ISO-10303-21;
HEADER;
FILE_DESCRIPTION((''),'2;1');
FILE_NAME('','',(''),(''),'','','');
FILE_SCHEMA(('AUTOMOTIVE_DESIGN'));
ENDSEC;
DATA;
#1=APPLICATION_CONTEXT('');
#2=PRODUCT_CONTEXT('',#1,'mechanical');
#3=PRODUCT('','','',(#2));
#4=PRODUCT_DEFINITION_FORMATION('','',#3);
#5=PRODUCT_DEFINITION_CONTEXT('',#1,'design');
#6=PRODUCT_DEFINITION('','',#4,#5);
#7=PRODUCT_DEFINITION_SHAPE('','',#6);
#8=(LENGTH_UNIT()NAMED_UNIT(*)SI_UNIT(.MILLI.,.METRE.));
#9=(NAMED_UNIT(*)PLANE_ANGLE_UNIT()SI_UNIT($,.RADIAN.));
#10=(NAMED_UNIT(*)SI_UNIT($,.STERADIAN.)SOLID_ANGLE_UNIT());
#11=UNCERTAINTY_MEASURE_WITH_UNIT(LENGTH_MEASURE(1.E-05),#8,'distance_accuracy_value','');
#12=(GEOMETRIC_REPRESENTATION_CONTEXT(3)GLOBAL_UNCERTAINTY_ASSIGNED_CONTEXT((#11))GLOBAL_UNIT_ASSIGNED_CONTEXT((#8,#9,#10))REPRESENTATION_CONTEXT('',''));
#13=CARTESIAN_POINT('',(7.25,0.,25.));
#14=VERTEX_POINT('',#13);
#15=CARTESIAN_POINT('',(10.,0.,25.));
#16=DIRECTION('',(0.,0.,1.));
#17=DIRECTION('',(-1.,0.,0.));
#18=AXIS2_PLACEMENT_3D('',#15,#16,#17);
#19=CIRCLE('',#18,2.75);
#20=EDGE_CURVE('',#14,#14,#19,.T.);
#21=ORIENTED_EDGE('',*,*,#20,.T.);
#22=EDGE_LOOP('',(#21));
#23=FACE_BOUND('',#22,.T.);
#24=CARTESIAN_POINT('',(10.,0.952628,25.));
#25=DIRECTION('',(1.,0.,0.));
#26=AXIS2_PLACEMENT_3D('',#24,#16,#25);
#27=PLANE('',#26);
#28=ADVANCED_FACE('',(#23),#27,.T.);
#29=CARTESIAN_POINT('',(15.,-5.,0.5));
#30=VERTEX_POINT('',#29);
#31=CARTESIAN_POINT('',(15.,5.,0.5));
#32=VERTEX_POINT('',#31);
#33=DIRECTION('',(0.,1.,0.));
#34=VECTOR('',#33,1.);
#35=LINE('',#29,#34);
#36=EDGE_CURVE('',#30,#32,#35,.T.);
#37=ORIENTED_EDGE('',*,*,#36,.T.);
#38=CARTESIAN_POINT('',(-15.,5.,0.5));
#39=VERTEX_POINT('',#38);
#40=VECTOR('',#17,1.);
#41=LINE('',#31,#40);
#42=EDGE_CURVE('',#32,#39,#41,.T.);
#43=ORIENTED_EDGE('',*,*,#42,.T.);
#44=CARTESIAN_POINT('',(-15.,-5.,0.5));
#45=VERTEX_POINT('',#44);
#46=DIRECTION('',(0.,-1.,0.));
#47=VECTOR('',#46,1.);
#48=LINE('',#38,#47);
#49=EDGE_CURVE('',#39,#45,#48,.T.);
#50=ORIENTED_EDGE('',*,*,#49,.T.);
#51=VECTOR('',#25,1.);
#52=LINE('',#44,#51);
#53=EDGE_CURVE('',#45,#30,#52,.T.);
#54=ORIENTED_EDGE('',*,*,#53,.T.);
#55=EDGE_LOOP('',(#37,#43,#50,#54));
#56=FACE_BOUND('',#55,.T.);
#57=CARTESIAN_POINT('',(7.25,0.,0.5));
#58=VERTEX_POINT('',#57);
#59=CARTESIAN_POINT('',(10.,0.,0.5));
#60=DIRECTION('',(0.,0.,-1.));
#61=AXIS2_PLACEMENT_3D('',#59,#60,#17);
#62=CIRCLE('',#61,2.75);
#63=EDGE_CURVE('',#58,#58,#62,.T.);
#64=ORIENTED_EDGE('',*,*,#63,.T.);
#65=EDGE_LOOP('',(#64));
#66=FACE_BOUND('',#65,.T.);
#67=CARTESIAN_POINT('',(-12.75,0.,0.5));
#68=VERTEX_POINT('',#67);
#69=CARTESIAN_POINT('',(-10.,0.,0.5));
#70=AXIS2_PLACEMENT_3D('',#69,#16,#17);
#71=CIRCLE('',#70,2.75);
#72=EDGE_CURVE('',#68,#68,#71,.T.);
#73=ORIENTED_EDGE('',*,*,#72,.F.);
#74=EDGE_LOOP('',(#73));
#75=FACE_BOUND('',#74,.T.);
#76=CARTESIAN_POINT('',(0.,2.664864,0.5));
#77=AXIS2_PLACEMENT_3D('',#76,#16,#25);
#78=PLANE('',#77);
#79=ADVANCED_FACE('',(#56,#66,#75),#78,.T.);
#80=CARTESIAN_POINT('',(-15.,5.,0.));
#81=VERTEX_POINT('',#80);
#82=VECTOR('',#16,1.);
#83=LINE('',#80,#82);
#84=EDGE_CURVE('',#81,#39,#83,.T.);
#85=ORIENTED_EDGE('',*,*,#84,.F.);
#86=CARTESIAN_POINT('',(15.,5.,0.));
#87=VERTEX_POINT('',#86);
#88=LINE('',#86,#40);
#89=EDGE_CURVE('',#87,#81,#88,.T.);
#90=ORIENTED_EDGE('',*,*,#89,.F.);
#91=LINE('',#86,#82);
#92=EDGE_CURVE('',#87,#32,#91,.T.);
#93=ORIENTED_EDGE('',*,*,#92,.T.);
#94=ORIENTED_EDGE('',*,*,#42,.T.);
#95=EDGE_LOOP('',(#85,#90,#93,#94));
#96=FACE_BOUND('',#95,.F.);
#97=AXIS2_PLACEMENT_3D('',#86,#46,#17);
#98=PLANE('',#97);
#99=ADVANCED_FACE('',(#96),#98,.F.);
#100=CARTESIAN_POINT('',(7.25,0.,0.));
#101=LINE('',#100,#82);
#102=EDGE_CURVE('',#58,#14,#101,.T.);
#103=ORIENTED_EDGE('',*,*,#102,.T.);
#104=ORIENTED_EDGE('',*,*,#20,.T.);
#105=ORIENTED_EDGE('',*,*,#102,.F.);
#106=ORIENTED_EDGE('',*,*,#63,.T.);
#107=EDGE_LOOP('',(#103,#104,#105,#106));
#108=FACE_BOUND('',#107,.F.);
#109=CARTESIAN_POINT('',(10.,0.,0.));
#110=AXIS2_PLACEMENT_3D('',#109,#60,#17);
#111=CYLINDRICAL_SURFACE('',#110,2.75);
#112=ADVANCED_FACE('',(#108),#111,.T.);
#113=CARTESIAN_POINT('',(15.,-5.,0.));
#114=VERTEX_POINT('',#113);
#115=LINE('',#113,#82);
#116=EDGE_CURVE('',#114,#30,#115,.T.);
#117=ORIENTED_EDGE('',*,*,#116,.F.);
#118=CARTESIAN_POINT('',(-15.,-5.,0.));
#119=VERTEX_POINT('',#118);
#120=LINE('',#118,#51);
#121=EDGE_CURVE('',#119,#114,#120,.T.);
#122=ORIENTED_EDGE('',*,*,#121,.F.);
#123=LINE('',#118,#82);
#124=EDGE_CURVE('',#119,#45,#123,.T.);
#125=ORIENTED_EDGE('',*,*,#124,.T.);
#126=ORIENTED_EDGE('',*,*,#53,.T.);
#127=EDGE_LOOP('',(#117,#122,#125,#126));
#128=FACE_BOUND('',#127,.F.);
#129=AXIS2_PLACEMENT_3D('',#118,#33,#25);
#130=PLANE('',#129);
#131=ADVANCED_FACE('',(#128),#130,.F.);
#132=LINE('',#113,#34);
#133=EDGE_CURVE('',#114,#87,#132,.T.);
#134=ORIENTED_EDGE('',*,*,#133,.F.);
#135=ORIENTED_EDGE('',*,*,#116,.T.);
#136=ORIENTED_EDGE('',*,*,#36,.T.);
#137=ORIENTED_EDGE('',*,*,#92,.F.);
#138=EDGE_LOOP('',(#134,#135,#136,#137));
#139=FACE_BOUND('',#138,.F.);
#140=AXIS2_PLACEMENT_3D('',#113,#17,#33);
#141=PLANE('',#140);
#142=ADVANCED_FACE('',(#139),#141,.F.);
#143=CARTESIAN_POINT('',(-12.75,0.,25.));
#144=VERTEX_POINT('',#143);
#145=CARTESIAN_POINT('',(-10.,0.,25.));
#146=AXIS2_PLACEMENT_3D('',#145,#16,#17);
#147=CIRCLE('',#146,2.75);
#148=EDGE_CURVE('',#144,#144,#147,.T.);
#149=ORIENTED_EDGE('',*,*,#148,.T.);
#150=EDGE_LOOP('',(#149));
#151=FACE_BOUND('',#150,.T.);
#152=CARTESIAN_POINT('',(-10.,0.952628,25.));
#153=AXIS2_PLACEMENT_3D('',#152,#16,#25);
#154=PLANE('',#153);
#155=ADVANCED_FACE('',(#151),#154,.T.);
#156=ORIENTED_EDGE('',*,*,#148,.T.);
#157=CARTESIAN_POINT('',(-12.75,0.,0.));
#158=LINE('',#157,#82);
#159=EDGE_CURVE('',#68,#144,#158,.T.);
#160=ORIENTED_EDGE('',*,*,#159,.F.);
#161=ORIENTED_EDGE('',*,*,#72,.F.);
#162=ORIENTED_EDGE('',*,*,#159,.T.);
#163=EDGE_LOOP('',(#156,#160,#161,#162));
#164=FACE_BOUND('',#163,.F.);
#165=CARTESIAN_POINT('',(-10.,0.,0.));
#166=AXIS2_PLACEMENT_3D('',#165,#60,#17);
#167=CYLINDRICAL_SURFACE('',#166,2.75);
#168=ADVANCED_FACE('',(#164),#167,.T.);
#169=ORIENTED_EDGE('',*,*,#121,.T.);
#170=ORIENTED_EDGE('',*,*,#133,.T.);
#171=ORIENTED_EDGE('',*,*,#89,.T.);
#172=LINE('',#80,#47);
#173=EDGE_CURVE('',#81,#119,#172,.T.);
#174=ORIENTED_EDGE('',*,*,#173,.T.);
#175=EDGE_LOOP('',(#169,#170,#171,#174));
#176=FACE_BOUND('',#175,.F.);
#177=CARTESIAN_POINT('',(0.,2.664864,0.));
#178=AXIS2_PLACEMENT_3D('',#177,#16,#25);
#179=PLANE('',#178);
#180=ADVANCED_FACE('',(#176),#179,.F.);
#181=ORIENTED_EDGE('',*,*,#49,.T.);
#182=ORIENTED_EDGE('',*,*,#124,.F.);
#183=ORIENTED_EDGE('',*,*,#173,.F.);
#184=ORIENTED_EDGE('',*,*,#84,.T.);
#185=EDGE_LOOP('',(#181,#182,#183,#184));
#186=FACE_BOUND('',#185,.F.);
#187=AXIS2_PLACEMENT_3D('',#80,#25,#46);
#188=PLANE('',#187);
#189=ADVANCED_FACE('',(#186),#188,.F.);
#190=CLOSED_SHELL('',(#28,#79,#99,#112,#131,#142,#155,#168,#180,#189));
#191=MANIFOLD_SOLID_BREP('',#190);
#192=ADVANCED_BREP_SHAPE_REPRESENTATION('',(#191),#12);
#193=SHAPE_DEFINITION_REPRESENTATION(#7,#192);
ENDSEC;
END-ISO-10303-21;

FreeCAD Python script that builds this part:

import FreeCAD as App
import Part
import Sketcher

doc = App.newDocument("Part")
params = doc.addObject("Spreadsheet::Sheet", "Params")
for row, (alias, value) in enumerate([
    ("sketch1_diameter", "5.5 mm"),
    ("sketch1_width", "30 mm"),
    ("sketch1_height", "10 mm"),
    ("pad1_length", "0.5 mm"),
    ("sketch2_diameter", "5.5 mm"),
    ("pad2_length", "25 mm"),
], start=1):
    params.set(f"A{row}", alias)
    params.set(f"B{row}", "=" + value)
    params.setAlias(f"B{row}", alias)

body = doc.addObject("PartDesign::Body", "Body")

sketch1 = body.newObject("Sketcher::SketchObject", "Sketch")
sketch1.AttachmentSupport = (doc.getObject("XY_Plane"), [""])
sketch1.MapMode = "FlatFace"
sketch1.addGeometry(Part.LineSegment(App.Vector(15, 5, 0), App.Vector(-15, 5, 0)), False)
sketch1.addGeometry(Part.LineSegment(App.Vector(-15, 5, 0), App.Vector(-15, -5, 0)), False)
sketch1.addGeometry(Part.LineSegment(App.Vector(-15, -5, 0), App.Vector(15, -5, 0)), False)
sketch1.addGeometry(Part.LineSegment(App.Vector(15, -5, 0), App.Vector(15, 5, 0)), False)
sketch1.addGeometry(Part.Circle(App.Vector(-10, 0, 0), App.Vector(0, 0, 1), 2.8), False)
sketch1.addGeometry(Part.Circle(App.Vector(10, 0, 0), App.Vector(0, 0, 1), 2.8), False)
sketch1.addConstraint(Sketcher.Constraint("Coincident", 0, 2, 1, 1))
sketch1.addConstraint(Sketcher.Constraint("Coincident", 1, 2, 2, 1))
sketch1.addConstraint(Sketcher.Constraint("Coincident", 2, 2, 3, 1))
sketch1.addConstraint(Sketcher.Constraint("Coincident", 3, 2, 0, 1))
sketch1.addConstraint(Sketcher.Constraint("Horizontal", 0))
sketch1.addConstraint(Sketcher.Constraint("Vertical", 1))
sketch1.addConstraint(Sketcher.Constraint("Horizontal", 2))
sketch1.addConstraint(Sketcher.Constraint("Vertical", 3))
sketch1.addConstraint(Sketcher.Constraint("Equal", 4, 5))
sketch1.addConstraint(Sketcher.Constraint("Symmetric", 4, 3, 5, 3, -1, 1))
sketch1.addConstraint(Sketcher.Constraint("Symmetric", 0, 2, 2, 2, -1, 1))
sketch1.addConstraint(Sketcher.Constraint("PointOnObject", 4, 3, -1))
sketch1.addConstraint(Sketcher.Constraint("Diameter", 4, 5.5))
sketch1.addConstraint(Sketcher.Constraint("DistanceX", 0, 2, 0, 1, 30.0))
sketch1.addConstraint(Sketcher.Constraint("DistanceY", 1, 2, 1, 1, 10.0))
sketch1.addConstraint(Sketcher.Constraint("DistanceX", 4, 3, -1, 1, 10.0))
sketch1.setExpression("Constraints[12]", "Params.sketch1_diameter")
sketch1.setExpression("Constraints[13]", "Params.sketch1_width")
sketch1.setExpression("Constraints[14]", "Params.sketch1_height")
pad1 = body.newObject("PartDesign::Pad", "Pad")
pad1.Profile = sketch1
pad1.setExpression("Length", "Params.pad1_length")

sketch2 = body.newObject("Sketcher::SketchObject", "Sketch001")
sketch2.AttachmentSupport = (doc.getObject("XY_Plane"), [""])
sketch2.MapMode = "FlatFace"
sketch2.addGeometry(Part.Circle(App.Vector(-10, 0, 0), App.Vector(0, 0, 1), 2.8), False)
sketch2.addGeometry(Part.Circle(App.Vector(10, 0, 0), App.Vector(0, 0, 1), 2.8), False)
sketch2.addConstraint(Sketcher.Constraint("Equal", 0, 1))
sketch2.addConstraint(Sketcher.Constraint("Symmetric", 0, 3, 1, 3, -1, 1))
sketch2.addConstraint(Sketcher.Constraint("PointOnObject", 0, 3, -1))
sketch2.addConstraint(Sketcher.Constraint("Diameter", 0, 5.5))
sketch2.addConstraint(Sketcher.Constraint("DistanceX", 0, 3, -1, 1, 10.0))
sketch2.setExpression("Constraints[3]", "Params.sketch2_diameter")
pad2 = body.newObject("PartDesign::Pad", "Pad001")
pad2.Profile = sketch2
pad2.setExpression("Length", "Params.pad2_length")

doc.recompute()
